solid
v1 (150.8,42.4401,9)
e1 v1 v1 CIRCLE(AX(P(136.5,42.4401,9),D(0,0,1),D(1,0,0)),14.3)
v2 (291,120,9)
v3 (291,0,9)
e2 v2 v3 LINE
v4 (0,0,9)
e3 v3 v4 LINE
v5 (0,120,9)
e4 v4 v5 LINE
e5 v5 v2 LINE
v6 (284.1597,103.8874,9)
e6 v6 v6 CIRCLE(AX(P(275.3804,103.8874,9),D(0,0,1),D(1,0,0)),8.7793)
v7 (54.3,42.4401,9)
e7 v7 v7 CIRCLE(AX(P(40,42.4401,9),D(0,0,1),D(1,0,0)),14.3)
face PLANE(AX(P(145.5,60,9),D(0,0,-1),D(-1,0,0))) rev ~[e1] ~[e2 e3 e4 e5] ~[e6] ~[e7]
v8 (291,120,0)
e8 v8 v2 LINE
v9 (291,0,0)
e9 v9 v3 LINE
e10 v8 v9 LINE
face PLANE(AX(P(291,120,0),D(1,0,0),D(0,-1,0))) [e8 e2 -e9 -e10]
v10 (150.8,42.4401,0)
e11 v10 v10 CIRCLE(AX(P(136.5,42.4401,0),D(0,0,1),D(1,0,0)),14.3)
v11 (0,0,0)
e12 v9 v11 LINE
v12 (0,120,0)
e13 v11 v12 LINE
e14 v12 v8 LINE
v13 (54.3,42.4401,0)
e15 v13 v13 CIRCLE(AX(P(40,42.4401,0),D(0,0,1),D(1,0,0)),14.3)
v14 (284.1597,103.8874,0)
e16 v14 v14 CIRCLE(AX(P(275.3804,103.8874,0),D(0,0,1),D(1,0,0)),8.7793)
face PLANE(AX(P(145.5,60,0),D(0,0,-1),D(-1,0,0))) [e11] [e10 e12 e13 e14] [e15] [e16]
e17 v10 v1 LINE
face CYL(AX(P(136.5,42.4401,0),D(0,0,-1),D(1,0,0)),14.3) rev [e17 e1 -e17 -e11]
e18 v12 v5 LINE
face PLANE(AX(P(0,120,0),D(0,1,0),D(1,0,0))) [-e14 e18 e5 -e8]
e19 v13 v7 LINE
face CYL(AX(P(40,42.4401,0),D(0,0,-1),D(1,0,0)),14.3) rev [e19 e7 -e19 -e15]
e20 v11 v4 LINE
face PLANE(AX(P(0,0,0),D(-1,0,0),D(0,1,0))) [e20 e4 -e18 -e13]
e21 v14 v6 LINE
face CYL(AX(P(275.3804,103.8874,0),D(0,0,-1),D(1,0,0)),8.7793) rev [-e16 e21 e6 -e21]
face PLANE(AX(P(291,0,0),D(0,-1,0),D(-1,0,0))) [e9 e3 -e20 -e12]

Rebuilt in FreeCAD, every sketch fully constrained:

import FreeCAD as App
import Part
import Sketcher


def add_polygon(sketch, points):
    """Adds a closed chain of lines whose ends are joined by coincident constraints."""
    first, n = sketch.GeometryCount, len(points)
    for a, b in zip(points, points[1:] + points[:1]):
        sketch.addGeometry(Part.LineSegment(App.Vector(*a, 0), App.Vector(*b, 0)), False)
    for i in range(n):
        sketch.addConstraint(Sketcher.Constraint("Coincident", first + i, 2, first + (i + 1) % n, 1))

doc = App.newDocument("Part")
params = doc.addObject("Spreadsheet::Sheet", "Params")
for row, (alias, value) in enumerate([
    ("sketch1_diameter", "28.6 mm"),
    ("sketch1_width", "291 mm"),
    ("sketch1_height", "120 mm"),
    ("pad1_length", "9 mm"),
], start=1):
    params.set(f"A{row}", alias)
    params.set(f"B{row}", "=" + value)
    params.setAlias(f"B{row}", alias)

body = doc.addObject("PartDesign::Body", "Body")

# Sketch on XY plane
sketch1 = body.newObject("Sketcher::SketchObject", "Sketch")
sketch1.AttachmentSupport = (doc.getObject("XY_Plane"), [""])
sketch1.MapMode = "FlatFace"
add_polygon(sketch1, [(0, 0), (291, 0), (291, 120), (0, 120)])  # lines 0-3
sketch1.addGeometry(Part.Circle(App.Vector(40, 42, 0), App.Vector(0, 0, 1), 14), False)  # 4
sketch1.addGeometry(Part.Circle(App.Vector(136, 42, 0), App.Vector(0, 0, 1), 14), False)  # 5
sketch1.addGeometry(Part.Circle(App.Vector(275, 104, 0), App.Vector(0, 0, 1), 9), False)  # 6
sketch1.addConstraint([
    Sketcher.Constraint("Horizontal", 0),
    Sketcher.Constraint("Vertical", 1),
    Sketcher.Constraint("Horizontal", 2),
    Sketcher.Constraint("Vertical", 3),
    Sketcher.Constraint("Coincident", 3, 2, -1, 1),
    Sketcher.Constraint("Equal", 4, 5),
    Sketcher.Constraint("Horizontal", 4, 3, 5, 3),
    Sketcher.Constraint("Diameter", 4, 28.6),
    Sketcher.Constraint("DistanceX", 0, 1, 0, 2, 291.0),
    Sketcher.Constraint("DistanceY", 1, 1, 1, 2, 120.0),
    Sketcher.Constraint("DistanceX", -1, 1, 4, 3, 40.0),
    Sketcher.Constraint("Diameter", 6, 17.5586),
    Sketcher.Constraint("DistanceX", -1, 1, 5, 3, 136.5),
    Sketcher.Constraint("DistanceY", -1, 1, 4, 3, 42.44),
    Sketcher.Constraint("DistanceX", -1, 1, 6, 3, 275.3804),
    Sketcher.Constraint("DistanceY", -1, 1, 6, 3, 103.8874),
])
sketch1.setExpression("Constraints[11]", "Params.sketch1_diameter")
sketch1.setExpression("Constraints[12]", "Params.sketch1_width")
sketch1.setExpression("Constraints[13]", "Params.sketch1_height")
pad1 = body.newObject("PartDesign::Pad", "Pad")
pad1.Profile = sketch1
pad1.setExpression("Length", "Params.pad1_length")

doc.recompute()
